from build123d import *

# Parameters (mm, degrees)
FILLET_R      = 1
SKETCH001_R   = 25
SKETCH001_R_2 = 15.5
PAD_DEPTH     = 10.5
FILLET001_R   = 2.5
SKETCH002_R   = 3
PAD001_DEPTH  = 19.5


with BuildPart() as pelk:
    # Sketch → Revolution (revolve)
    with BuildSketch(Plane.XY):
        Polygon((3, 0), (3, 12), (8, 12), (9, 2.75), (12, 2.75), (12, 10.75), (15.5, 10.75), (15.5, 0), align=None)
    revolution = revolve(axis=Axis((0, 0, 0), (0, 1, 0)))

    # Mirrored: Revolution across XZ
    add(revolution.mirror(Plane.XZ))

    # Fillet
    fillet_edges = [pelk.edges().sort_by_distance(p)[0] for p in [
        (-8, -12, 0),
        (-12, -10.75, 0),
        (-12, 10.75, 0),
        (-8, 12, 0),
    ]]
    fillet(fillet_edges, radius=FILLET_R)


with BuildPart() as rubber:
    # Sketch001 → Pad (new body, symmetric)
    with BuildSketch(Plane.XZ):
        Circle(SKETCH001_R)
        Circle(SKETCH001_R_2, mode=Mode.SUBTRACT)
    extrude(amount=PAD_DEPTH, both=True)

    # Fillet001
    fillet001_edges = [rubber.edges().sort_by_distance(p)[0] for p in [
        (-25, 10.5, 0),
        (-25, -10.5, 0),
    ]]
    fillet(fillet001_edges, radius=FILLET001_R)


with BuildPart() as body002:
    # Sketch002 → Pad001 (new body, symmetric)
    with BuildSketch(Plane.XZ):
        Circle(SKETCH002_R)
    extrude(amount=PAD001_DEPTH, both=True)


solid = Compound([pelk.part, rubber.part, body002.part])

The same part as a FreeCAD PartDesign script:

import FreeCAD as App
import Part
import Sketcher


def edges_at(feature, points):
    """Names of the edges that pass closest to the given points."""
    edges = feature.Shape.Edges
    near = lambda p: min(range(len(edges)), key=lambda i: edges[i].distToShape(Part.Vertex(*p))[0])
    return sorted({f"Edge{near(p) + 1}" for p in points})


def add_polygon(sketch, points):
    """Adds a closed chain of lines whose ends are joined by coincident constraints."""
    first, n = sketch.GeometryCount, len(points)
    for a, b in zip(points, points[1:] + points[:1]):
        sketch.addGeometry(Part.LineSegment(App.Vector(*a, 0), App.Vector(*b, 0)), False)
    for i in range(n):
        sketch.addConstraint(Sketcher.Constraint("Coincident", first + i, 2, first + (i + 1) % n, 1))

doc = App.newDocument("Part")
body = doc.addObject("PartDesign::Body", "Body")

sketch1 = doc.addObject("Sketcher::SketchObject", "Sketch")
body.addObject(sketch1)
sketch1.AttachmentSupport = (doc.XY_Plane, [""])
sketch1.MapMode = "FlatFace"
add_polygon(sketch1, [(3, 12), (3, 0), (15.5, 0), (15.5, 10.8), (12, 10.8), (12, 2.8), (9, 2.8), (8, 12)])
sketch1.addConstraint([
    Sketcher.Constraint("Vertical", 0),
    Sketcher.Constraint("Horizontal", 1),
    Sketcher.Constraint("Vertical", 2),
    Sketcher.Constraint("Horizontal", 3),
    Sketcher.Constraint("Vertical", 4),
    Sketcher.Constraint("Horizontal", 5),
    Sketcher.Constraint("Horizontal", 7),
    Sketcher.Constraint("PointOnObject", 0, 2, -1),
    Sketcher.Constraint("DistanceX", 5, 2, 5, 1, 3.0),
    Sketcher.Constraint("DistanceX", 7, 2, 7, 1, 5.0),
    Sketcher.Constraint("DistanceY", 0, 2, 0, 1, 12.0),
    Sketcher.Constraint("DistanceY", 4, 2, 4, 1, 8.0),
    Sketcher.Constraint("DistanceX", 1, 1, 1, 2, 12.5),
    Sketcher.Constraint("DistanceX", 3, 2, 3, 1, 3.5),
    Sketcher.Constraint("DistanceX", -1, 1, 0, 2, 3.0),
    Sketcher.Constraint("DistanceY", 2, 1, 2, 2, 10.75),
])
revolution = doc.addObject("PartDesign::Revolution", "Revolution")
body.addObject(revolution)
revolution.Profile = sketch1
revolution.ReferenceAxis = (sketch1, ["V_Axis"])
revolution.Angle = 360
doc.recompute()

mirrored = doc.addObject("PartDesign::Mirrored", "Mirrored")
body.addObject(mirrored)
mirrored.Originals = [revolution]
mirrored.MirrorPlane = (doc.XZ_Plane, [""])
body.Tip = mirrored
doc.recompute()

fillet = doc.addObject("PartDesign::Fillet", "Fillet")
body.addObject(fillet)
fillet.Base = (mirrored, edges_at(mirrored, [
    (-8, -12, 0),
    (-12, -10.75, 0),
    (-12, 10.75, 0),
    (-8, 12, 0),
]))
fillet.Radius = 1
body2 = doc.addObject("PartDesign::Body", "Body001")

sketch2 = doc.addObject("Sketcher::SketchObject", "Sketch001")
body2.addObject(sketch2)
sketch2.AttachmentSupport = (doc.getObject("XZ_Plane001"), [""])
sketch2.MapMode = "FlatFace"
sketch2.addGeometry([
    Part.Circle(App.Vector(0, 0, 0), App.Vector(0, 0, 1), 25),
    Part.Circle(App.Vector(0, 0, 0), App.Vector(0, 0, 1), 16),
], False)
sketch2.addConstraint([
    Sketcher.Constraint("Coincident", 0, 3, -1, 1),
    Sketcher.Constraint("Coincident", 1, 3, -1, 1),
    Sketcher.Constraint("Diameter", 0, 50.0),
    Sketcher.Constraint("Diameter", 1, 31.0),
])
pad1 = doc.addObject("PartDesign::Pad", "Pad")
body2.addObject(pad1)
pad1.Profile = sketch2
pad1.Length = 21
pad1.Midplane = True
doc.recompute()

fillet2 = doc.addObject("PartDesign::Fillet", "Fillet001")
body2.addObject(fillet2)
fillet2.Base = (pad1, edges_at(pad1, [(-25, 10.5, 0), (-25, -10.5, 0)]))
fillet2.Radius = 2.5
body3 = doc.addObject("PartDesign::Body", "Body002")

sketch3 = doc.addObject("Sketcher::SketchObject", "Sketch002")
body3.addObject(sketch3)
sketch3.AttachmentSupport = (doc.getObject("XZ_Plane002"), [""])
sketch3.MapMode = "FlatFace"
sketch3.addGeometry(Part.Circle(App.Vector(0, 0, 0), App.Vector(0, 0, 1), 3), False)
sketch3.addConstraint([
    Sketcher.Constraint("Coincident", 0, 3, -1, 1),
    Sketcher.Constraint("Diameter", 0, 6.0),
])
pad2 = doc.addObject("PartDesign::Pad", "Pad001")
body3.addObject(pad2)
pad2.Profile = sketch3
pad2.Length = 39
pad2.Midplane = True

doc.recompute()
